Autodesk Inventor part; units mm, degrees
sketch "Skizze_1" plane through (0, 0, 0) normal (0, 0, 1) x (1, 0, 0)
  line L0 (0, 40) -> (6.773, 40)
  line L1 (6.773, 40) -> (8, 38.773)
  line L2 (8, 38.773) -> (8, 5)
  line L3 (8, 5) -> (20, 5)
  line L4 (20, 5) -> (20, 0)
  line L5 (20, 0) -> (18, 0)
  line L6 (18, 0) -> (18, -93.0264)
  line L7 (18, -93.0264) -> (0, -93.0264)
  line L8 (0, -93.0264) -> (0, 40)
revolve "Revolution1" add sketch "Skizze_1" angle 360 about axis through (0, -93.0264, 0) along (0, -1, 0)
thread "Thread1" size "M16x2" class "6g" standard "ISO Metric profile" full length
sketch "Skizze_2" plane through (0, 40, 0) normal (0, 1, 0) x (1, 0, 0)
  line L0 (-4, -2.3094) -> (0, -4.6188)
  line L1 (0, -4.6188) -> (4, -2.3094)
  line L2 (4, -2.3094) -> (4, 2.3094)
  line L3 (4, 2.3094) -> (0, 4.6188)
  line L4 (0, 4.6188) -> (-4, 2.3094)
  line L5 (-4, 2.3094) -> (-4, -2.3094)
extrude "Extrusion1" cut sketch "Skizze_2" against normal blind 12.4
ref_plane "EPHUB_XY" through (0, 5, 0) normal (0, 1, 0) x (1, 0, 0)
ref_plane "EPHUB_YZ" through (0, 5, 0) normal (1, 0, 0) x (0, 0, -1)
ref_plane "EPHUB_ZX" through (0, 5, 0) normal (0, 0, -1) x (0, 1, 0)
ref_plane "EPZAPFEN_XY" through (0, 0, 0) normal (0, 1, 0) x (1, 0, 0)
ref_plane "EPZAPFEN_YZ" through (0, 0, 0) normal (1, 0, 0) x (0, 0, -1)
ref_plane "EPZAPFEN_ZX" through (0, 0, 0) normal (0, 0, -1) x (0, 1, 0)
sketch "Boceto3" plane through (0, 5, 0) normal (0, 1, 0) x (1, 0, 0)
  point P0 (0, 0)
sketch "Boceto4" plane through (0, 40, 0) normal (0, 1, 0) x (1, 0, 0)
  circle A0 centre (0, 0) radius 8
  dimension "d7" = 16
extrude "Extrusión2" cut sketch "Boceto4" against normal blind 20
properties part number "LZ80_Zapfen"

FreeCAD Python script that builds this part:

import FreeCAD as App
import Part
import Sketcher
Q = App.Units.Quantity


def add_polygon(sketch, points):
    """Adds a closed chain of lines whose ends are joined by coincident constraints."""
    first, n = sketch.GeometryCount, len(points)
    for a, b in zip(points, points[1:] + points[:1]):
        sketch.addGeometry(Part.LineSegment(App.Vector(*a, 0), App.Vector(*b, 0)), False)
    for i in range(n):
        sketch.addConstraint(Sketcher.Constraint("Coincident", first + i, 2, first + (i + 1) % n, 1))

doc = App.newDocument("Part")
body = doc.addObject("PartDesign::Body", "Body")

sketch1 = body.newObject("Sketcher::SketchObject", "Sketch")
sketch1.AttachmentSupport = (doc.getObject("XY_Plane"), [""])
sketch1.MapMode = "FlatFace"
add_polygon(sketch1, [(6.773, 40), (0, 40), (0, -93.0264), (18, -93.0264), (18, 0), (20, 0), (20, 5), (8, 5), (8, 38.773)])
sketch1.addConstraint(Sketcher.Constraint("Horizontal", 0))
sketch1.addConstraint(Sketcher.Constraint("Vertical", 1))
sketch1.addConstraint(Sketcher.Constraint("Horizontal", 2))
sketch1.addConstraint(Sketcher.Constraint("Vertical", 3))
sketch1.addConstraint(Sketcher.Constraint("Horizontal", 4))
sketch1.addConstraint(Sketcher.Constraint("Vertical", 5))
sketch1.addConstraint(Sketcher.Constraint("Horizontal", 6))
sketch1.addConstraint(Sketcher.Constraint("Vertical", 7))
sketch1.addConstraint(Sketcher.Constraint("PointOnObject", 0, 2, -2))
sketch1.addConstraint(Sketcher.Constraint("PointOnObject", 3, 2, -1))
sketch1.addConstraint(Sketcher.Constraint("DistanceX", 2, 1, 2, 2, Q("18 mm")))
sketch1.addConstraint(Sketcher.Constraint("DistanceX", 4, 1, 4, 2, Q("2 mm")))
sketch1.addConstraint(Sketcher.Constraint("DistanceX", 6, 2, 6, 1, Q("12 mm")))
sketch1.addConstraint(Sketcher.Constraint("DistanceY", 5, 1, 5, 2, Q("5 mm")))
sketch1.addConstraint(Sketcher.Constraint("Angle", 8, Q("135 deg")))
sketch1.addConstraint(Sketcher.Constraint("DistanceY", -1, 1, 0, 2, Q("40 mm")))
sketch1.addConstraint(Sketcher.Constraint("DistanceX", 0, 2, 0, 1, Q("6.773 mm")))
sketch1.addConstraint(Sketcher.Constraint("DistanceY", 1, 2, 1, 1, Q("133.0264 mm")))
revolution = body.newObject("PartDesign::Revolution", "Revolution")
revolution.Profile = sketch1
revolution.ReferenceAxis = (sketch1, ["V_Axis"])
revolution.Angle = 360

sketch2 = body.newObject("Sketcher::SketchObject", "Sketch001")
sketch2.AttachmentSupport = (doc.getObject("XZ_Plane"), [""])
sketch2.MapMode = "FlatFace"
sketch2.AttachmentOffset = App.Placement(App.Vector(0, 0, -40), App.Rotation())
add_polygon(sketch2, [(-4, -2.3094), (-4, 2.3094), (0, 4.6188), (4, 2.3094), (4, -2.3094), (0, -4.6188)])
sketch2.addConstraint(Sketcher.Constraint("Vertical", 0))
sketch2.addConstraint(Sketcher.Constraint("Vertical", 3))
sketch2.addConstraint(Sketcher.Constraint("Symmetric", 0, 2, 3, 2, -1, 1))
sketch2.addConstraint(Sketcher.Constraint("Symmetric", 1, 2, 4, 2, -1, 1))
sketch2.addConstraint(Sketcher.Constraint("PointOnObject", 1, 2, -2))
sketch2.addConstraint(Sketcher.Constraint("Parallel", 2, 5))
sketch2.addConstraint(Sketcher.Constraint("Horizontal", 0, 2, 2, 2))
sketch2.addConstraint(Sketcher.Constraint("Angle", 1, Q("30 deg")))
sketch2.addConstraint(Sketcher.Constraint("DistanceX", 0, 2, -1, 1, Q("4 mm")))
sketch2.addConstraint(Sketcher.Constraint("DistanceY", 0, 1, 0, 2, Q("4.6188 mm")))
pocket1 = body.newObject("PartDesign::Pocket", "Pocket")
pocket1.Profile = sketch2
pocket1.Length = 12.4
pocket1.Reversed = True

sketch3 = body.newObject("Sketcher::SketchObject", "Sketch002")
sketch3.AttachmentSupport = (doc.getObject("XZ_Plane"), [""])
sketch3.MapMode = "FlatFace"
sketch3.AttachmentOffset = App.Placement(App.Vector(0, 0, -40), App.Rotation())
sketch3.addGeometry(Part.Circle(App.Vector(0, 0, 0), App.Vector(0, 0, 1), 8), False)
sketch3.addConstraint(Sketcher.Constraint("Coincident", 0, 3, -1, 1))
sketch3.addConstraint(Sketcher.Constraint("Diameter", 0, Q("16 mm")))
pocket2 = body.newObject("PartDesign::Pocket", "Pocket001")
pocket2.Profile = sketch3
pocket2.Length = 20
pocket2.Reversed = True

doc.recompute()
